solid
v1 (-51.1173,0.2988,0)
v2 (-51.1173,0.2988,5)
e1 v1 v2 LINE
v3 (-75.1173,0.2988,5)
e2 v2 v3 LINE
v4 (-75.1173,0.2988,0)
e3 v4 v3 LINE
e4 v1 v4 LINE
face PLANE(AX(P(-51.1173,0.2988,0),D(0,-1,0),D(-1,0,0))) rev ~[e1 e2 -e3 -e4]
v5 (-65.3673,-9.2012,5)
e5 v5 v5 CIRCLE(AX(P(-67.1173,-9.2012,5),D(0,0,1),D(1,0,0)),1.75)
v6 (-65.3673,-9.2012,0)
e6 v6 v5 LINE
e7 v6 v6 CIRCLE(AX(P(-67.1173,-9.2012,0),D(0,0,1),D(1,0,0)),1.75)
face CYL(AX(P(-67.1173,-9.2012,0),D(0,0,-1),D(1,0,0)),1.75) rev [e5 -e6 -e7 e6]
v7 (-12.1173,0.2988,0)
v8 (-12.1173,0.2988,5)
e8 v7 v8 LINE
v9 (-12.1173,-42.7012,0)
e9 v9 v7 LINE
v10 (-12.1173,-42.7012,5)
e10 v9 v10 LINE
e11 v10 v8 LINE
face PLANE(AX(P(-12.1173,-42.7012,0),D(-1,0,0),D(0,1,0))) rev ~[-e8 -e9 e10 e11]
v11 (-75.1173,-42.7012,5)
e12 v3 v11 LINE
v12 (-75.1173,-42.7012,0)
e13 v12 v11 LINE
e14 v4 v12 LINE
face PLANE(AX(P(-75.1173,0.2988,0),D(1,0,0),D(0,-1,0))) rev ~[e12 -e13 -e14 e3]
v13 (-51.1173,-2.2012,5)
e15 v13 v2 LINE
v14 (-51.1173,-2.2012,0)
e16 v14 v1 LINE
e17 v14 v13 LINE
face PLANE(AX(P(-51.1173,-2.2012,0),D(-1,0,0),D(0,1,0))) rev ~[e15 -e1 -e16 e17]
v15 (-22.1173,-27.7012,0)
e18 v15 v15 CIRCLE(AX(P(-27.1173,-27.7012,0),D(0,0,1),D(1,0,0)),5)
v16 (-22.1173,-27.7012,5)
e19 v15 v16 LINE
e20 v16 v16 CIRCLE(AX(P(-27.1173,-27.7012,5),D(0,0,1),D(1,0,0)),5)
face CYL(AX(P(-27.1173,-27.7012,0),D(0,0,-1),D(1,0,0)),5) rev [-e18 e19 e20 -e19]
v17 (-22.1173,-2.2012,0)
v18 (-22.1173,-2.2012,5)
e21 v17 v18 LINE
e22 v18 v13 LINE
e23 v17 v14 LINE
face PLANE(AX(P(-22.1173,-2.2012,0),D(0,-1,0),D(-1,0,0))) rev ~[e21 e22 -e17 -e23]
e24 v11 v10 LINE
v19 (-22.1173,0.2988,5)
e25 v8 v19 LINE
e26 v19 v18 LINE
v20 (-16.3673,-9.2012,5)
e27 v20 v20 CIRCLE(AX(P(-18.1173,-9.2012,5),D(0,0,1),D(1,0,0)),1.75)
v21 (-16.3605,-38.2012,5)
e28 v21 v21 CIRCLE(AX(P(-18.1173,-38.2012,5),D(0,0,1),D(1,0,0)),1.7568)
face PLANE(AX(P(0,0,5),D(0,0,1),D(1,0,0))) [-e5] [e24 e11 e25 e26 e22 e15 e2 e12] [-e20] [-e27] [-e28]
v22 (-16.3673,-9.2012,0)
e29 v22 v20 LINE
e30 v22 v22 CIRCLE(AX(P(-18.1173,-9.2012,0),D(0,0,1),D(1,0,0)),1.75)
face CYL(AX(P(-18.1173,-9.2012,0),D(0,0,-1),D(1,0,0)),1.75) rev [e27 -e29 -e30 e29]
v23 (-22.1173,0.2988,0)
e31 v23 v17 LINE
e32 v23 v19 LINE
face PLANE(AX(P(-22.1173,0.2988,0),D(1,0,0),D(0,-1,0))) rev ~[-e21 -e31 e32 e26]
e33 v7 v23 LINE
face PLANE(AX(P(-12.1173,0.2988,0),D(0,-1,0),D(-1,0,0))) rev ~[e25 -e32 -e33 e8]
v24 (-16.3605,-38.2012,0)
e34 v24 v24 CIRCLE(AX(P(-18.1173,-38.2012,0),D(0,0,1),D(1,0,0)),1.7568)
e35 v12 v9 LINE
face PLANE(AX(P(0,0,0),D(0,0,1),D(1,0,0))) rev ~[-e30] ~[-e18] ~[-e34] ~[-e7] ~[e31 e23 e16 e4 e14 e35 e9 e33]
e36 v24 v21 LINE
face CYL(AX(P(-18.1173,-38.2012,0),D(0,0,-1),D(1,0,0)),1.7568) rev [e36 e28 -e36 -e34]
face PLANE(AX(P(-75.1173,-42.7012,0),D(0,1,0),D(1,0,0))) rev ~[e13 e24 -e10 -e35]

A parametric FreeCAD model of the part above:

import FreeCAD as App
import Part
import Sketcher

V = App.Vector
Q = App.Units.Quantity


def add_polygon(sketch, points):
    """Adds a closed chain of lines whose ends are joined by coincident constraints."""
    first, n = sketch.GeometryCount, len(points)
    for a, b in zip(points, points[1:] + points[:1]):
        sketch.addGeometry(Part.LineSegment(App.Vector(*a, 0), App.Vector(*b, 0)), False)
    for i in range(n):
        sketch.addConstraint(Sketcher.Constraint("Coincident", first + i, 2, first + (i + 1) % n, 1))

doc = App.newDocument("Part")
body = doc.addObject("PartDesign::Body", "Body")

# Sketch on XY plane
sketch1 = body.newObject("Sketcher::SketchObject", "Sketch")
sketch1.AttachmentSupport = (doc.getObject("XY_Plane"), [""])
sketch1.MapMode = "FlatFace"
add_polygon(sketch1, [(-12.1, -42.7), (-12.1, 0.3), (-22.1, 0.3), (-22.1, -2.2), (-51.1, -2.2), (-51.1, 0.3), (-75.1, 0.3), (-75.1, -42.7)])  # lines 0-7
sketch1.addGeometry(Part.Circle(V(-18.1, -38.2, 0), V(0, 0, 1), 1.8), False)  # 8
sketch1.addGeometry(Part.Circle(V(-27.1, -27.7, 0), V(0, 0, 1), 5), False)  # 9
sketch1.addGeometry(Part.Circle(V(-67.1, -9.2, 0), V(0, 0, 1), 1.8), False)  # 10
sketch1.addGeometry(Part.Circle(V(-18.1, -9.2, 0), V(0, 0, 1), 1.8), False)  # 11
sketch1.addConstraint(Sketcher.Constraint("Vertical", 0))
sketch1.addConstraint(Sketcher.Constraint("Horizontal", 1))
sketch1.addConstraint(Sketcher.Constraint("Vertical", 2))
sketch1.addConstraint(Sketcher.Constraint("Horizontal", 3))
sketch1.addConstraint(Sketcher.Constraint("Vertical", 4))
sketch1.addConstraint(Sketcher.Constraint("Horizontal", 5))
sketch1.addConstraint(Sketcher.Constraint("Vertical", 6))
sketch1.addConstraint(Sketcher.Constraint("Horizontal", 7))
sketch1.addConstraint(Sketcher.Constraint("Equal", 10, 11))
sketch1.addConstraint(Sketcher.Constraint("Horizontal", 10, 3, 11, 3))
sketch1.addConstraint(Sketcher.Constraint("Horizontal", 1, 2, 4, 2))
sketch1.addConstraint(Sketcher.Constraint("Vertical", 8, 3, 11, 3))
sketch1.addConstraint(Sketcher.Constraint("Diameter", 9, Q("10 mm")))
sketch1.addConstraint(Sketcher.Constraint("Diameter", 10, Q("3.5 mm")))
sketch1.addConstraint(Sketcher.Constraint("DistanceX", 1, 2, 1, 1, Q("10 mm")))
sketch1.addConstraint(Sketcher.Constraint("DistanceX", 3, 2, 3, 1, Q("29 mm")))
sketch1.addConstraint(Sketcher.Constraint("DistanceX", 5, 2, 5, 1, Q("24 mm")))
sketch1.addConstraint(Sketcher.Constraint("DistanceY", 0, 1, 0, 2, Q("43 mm")))
sketch1.addConstraint(Sketcher.Constraint("DistanceY", 2, 2, 2, 1, Q("2.5 mm")))
sketch1.addConstraint(Sketcher.Constraint("DistanceX", 9, 3, 8, 3, Q("9 mm")))
sketch1.addConstraint(Sketcher.Constraint("DistanceX", 10, 3, 9, 3, Q("40 mm")))
sketch1.addConstraint(Sketcher.Constraint("DistanceY", 8, 3, 10, 3, Q("29 mm")))
sketch1.addConstraint(Sketcher.Constraint("DistanceX", 11, 3, 0, 2, Q("6 mm")))
sketch1.addConstraint(Sketcher.Constraint("DistanceY", 9, 3, 0, 2, Q("28 mm")))
sketch1.addConstraint(Sketcher.Constraint("DistanceY", 11, 3, 2, 2, Q("7 mm")))
sketch1.addConstraint(Sketcher.Constraint("Diameter", 8, Q("3.5136 mm")))
sketch1.addConstraint(Sketcher.Constraint("DistanceX", 8, 3, -1, 1, Q("18.1173 mm")))
sketch1.addConstraint(Sketcher.Constraint("DistanceY", 8, 3, -1, 1, Q("38.2012 mm")))
pad1 = body.newObject("PartDesign::Pad", "Pad")
pad1.Profile = sketch1
pad1.Length = 5

doc.recompute()
